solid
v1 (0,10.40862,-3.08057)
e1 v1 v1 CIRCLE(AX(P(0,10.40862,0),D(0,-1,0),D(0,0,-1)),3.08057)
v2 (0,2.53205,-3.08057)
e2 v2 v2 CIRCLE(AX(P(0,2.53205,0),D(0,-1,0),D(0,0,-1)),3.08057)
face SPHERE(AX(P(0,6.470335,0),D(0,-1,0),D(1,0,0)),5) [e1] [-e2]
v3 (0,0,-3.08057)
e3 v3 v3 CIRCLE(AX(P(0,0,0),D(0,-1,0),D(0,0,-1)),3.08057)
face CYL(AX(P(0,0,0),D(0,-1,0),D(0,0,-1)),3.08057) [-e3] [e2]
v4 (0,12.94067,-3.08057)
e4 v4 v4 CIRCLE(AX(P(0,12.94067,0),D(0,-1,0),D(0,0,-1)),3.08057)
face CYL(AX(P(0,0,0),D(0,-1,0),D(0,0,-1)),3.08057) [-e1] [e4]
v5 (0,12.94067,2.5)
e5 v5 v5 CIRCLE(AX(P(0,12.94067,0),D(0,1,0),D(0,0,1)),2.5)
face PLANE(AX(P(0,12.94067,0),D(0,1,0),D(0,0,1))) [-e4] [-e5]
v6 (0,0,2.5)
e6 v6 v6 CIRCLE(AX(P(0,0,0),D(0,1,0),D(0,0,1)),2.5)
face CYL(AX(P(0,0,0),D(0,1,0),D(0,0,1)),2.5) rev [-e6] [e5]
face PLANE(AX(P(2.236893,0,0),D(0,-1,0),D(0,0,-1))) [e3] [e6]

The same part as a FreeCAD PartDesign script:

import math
import FreeCAD as App
import Part
import Sketcher

V = App.Vector

doc = App.newDocument("Part")
body = doc.addObject("PartDesign::Body", "Body")

# Sketch on XY plane
sketch1 = body.newObject("Sketcher::SketchObject", "Sketch")
sketch1.AttachmentSupport = (doc.getObject("XY_Plane"), [""])
sketch1.MapMode = "FlatFace"
sketch1.addGeometry([
    Part.LineSegment(V(3.1, 12.9, 0), V(0, 12.9, 0)),  # 0
    Part.LineSegment(V(0, 12.9, 0), V(0, 0, 0)),  # 1
    Part.LineSegment(V(0, 0, 0), V(3.1, 0, 0)),  # 2
    Part.LineSegment(V(3.1, 0, 0), V(3.1, 2.5, 0)),  # 3
    Part.ArcOfCircle(Part.Circle(V(0, 6.5, 0), V(0, 0, 1), 5), math.radians(-52), math.radians(52)),  # 4
    Part.LineSegment(V(3.1, 10.4, 0), V(3.1, 12.9, 0)),  # 5
], False)
sketch1.addConstraint([
    Sketcher.Constraint("Coincident", 0, 2, 1, 1),
    Sketcher.Constraint("Coincident", 1, 2, 2, 1),
    Sketcher.Constraint("Coincident", 2, 2, 3, 1),
    Sketcher.Constraint("Coincident", 3, 2, 4, 1),
    Sketcher.Constraint("Coincident", 4, 2, 5, 1),
    Sketcher.Constraint("Coincident", 5, 2, 0, 1),
    Sketcher.Constraint("Horizontal", 0),
    Sketcher.Constraint("Vertical", 1),
    Sketcher.Constraint("Horizontal", 2),
    Sketcher.Constraint("Vertical", 3),
    Sketcher.Constraint("Vertical", 5),
    Sketcher.Constraint("Coincident", 1, 2, -1, 1),
    Sketcher.Constraint("PointOnObject", 4, 3, -2),
    Sketcher.Constraint("Vertical", 3, 2, 4, 2),
    Sketcher.Constraint("Equal", 3, 5),
    Sketcher.Constraint("Radius", 4, 5.0),
    Sketcher.Constraint("DistanceX", 0, 2, 0, 1, 3.08057),
    Sketcher.Constraint("DistanceY", 1, 2, 1, 1, 12.94067),
])
revolution = body.newObject("PartDesign::Revolution", "Revolution")
revolution.Profile = sketch1
revolution.ReferenceAxis = (sketch1, ["V_Axis"])
revolution.Angle = 360

# Sketch on XZ plane
sketch2 = body.newObject("Sketcher::SketchObject", "Sketch001")
sketch2.AttachmentSupport = (doc.getObject("XZ_Plane"), [""])
sketch2.MapMode = "FlatFace"
sketch2.AttachmentOffset = App.Placement(V(0, 0, -12.94067), App.Rotation())
sketch2.addGeometry(Part.Circle(V(0, 0, 0), V(0, 0, 1), 2.5), False)
sketch2.addConstraint([
    Sketcher.Constraint("Coincident", 0, 3, -1, 1),
    Sketcher.Constraint("Diameter", 0, 5.0),
])
pocket1 = body.newObject("PartDesign::Pocket", "Pocket")
pocket1.Profile = sketch2
pocket1.Type = "ThroughAll"
pocket1.Reversed = True

doc.recompute()
